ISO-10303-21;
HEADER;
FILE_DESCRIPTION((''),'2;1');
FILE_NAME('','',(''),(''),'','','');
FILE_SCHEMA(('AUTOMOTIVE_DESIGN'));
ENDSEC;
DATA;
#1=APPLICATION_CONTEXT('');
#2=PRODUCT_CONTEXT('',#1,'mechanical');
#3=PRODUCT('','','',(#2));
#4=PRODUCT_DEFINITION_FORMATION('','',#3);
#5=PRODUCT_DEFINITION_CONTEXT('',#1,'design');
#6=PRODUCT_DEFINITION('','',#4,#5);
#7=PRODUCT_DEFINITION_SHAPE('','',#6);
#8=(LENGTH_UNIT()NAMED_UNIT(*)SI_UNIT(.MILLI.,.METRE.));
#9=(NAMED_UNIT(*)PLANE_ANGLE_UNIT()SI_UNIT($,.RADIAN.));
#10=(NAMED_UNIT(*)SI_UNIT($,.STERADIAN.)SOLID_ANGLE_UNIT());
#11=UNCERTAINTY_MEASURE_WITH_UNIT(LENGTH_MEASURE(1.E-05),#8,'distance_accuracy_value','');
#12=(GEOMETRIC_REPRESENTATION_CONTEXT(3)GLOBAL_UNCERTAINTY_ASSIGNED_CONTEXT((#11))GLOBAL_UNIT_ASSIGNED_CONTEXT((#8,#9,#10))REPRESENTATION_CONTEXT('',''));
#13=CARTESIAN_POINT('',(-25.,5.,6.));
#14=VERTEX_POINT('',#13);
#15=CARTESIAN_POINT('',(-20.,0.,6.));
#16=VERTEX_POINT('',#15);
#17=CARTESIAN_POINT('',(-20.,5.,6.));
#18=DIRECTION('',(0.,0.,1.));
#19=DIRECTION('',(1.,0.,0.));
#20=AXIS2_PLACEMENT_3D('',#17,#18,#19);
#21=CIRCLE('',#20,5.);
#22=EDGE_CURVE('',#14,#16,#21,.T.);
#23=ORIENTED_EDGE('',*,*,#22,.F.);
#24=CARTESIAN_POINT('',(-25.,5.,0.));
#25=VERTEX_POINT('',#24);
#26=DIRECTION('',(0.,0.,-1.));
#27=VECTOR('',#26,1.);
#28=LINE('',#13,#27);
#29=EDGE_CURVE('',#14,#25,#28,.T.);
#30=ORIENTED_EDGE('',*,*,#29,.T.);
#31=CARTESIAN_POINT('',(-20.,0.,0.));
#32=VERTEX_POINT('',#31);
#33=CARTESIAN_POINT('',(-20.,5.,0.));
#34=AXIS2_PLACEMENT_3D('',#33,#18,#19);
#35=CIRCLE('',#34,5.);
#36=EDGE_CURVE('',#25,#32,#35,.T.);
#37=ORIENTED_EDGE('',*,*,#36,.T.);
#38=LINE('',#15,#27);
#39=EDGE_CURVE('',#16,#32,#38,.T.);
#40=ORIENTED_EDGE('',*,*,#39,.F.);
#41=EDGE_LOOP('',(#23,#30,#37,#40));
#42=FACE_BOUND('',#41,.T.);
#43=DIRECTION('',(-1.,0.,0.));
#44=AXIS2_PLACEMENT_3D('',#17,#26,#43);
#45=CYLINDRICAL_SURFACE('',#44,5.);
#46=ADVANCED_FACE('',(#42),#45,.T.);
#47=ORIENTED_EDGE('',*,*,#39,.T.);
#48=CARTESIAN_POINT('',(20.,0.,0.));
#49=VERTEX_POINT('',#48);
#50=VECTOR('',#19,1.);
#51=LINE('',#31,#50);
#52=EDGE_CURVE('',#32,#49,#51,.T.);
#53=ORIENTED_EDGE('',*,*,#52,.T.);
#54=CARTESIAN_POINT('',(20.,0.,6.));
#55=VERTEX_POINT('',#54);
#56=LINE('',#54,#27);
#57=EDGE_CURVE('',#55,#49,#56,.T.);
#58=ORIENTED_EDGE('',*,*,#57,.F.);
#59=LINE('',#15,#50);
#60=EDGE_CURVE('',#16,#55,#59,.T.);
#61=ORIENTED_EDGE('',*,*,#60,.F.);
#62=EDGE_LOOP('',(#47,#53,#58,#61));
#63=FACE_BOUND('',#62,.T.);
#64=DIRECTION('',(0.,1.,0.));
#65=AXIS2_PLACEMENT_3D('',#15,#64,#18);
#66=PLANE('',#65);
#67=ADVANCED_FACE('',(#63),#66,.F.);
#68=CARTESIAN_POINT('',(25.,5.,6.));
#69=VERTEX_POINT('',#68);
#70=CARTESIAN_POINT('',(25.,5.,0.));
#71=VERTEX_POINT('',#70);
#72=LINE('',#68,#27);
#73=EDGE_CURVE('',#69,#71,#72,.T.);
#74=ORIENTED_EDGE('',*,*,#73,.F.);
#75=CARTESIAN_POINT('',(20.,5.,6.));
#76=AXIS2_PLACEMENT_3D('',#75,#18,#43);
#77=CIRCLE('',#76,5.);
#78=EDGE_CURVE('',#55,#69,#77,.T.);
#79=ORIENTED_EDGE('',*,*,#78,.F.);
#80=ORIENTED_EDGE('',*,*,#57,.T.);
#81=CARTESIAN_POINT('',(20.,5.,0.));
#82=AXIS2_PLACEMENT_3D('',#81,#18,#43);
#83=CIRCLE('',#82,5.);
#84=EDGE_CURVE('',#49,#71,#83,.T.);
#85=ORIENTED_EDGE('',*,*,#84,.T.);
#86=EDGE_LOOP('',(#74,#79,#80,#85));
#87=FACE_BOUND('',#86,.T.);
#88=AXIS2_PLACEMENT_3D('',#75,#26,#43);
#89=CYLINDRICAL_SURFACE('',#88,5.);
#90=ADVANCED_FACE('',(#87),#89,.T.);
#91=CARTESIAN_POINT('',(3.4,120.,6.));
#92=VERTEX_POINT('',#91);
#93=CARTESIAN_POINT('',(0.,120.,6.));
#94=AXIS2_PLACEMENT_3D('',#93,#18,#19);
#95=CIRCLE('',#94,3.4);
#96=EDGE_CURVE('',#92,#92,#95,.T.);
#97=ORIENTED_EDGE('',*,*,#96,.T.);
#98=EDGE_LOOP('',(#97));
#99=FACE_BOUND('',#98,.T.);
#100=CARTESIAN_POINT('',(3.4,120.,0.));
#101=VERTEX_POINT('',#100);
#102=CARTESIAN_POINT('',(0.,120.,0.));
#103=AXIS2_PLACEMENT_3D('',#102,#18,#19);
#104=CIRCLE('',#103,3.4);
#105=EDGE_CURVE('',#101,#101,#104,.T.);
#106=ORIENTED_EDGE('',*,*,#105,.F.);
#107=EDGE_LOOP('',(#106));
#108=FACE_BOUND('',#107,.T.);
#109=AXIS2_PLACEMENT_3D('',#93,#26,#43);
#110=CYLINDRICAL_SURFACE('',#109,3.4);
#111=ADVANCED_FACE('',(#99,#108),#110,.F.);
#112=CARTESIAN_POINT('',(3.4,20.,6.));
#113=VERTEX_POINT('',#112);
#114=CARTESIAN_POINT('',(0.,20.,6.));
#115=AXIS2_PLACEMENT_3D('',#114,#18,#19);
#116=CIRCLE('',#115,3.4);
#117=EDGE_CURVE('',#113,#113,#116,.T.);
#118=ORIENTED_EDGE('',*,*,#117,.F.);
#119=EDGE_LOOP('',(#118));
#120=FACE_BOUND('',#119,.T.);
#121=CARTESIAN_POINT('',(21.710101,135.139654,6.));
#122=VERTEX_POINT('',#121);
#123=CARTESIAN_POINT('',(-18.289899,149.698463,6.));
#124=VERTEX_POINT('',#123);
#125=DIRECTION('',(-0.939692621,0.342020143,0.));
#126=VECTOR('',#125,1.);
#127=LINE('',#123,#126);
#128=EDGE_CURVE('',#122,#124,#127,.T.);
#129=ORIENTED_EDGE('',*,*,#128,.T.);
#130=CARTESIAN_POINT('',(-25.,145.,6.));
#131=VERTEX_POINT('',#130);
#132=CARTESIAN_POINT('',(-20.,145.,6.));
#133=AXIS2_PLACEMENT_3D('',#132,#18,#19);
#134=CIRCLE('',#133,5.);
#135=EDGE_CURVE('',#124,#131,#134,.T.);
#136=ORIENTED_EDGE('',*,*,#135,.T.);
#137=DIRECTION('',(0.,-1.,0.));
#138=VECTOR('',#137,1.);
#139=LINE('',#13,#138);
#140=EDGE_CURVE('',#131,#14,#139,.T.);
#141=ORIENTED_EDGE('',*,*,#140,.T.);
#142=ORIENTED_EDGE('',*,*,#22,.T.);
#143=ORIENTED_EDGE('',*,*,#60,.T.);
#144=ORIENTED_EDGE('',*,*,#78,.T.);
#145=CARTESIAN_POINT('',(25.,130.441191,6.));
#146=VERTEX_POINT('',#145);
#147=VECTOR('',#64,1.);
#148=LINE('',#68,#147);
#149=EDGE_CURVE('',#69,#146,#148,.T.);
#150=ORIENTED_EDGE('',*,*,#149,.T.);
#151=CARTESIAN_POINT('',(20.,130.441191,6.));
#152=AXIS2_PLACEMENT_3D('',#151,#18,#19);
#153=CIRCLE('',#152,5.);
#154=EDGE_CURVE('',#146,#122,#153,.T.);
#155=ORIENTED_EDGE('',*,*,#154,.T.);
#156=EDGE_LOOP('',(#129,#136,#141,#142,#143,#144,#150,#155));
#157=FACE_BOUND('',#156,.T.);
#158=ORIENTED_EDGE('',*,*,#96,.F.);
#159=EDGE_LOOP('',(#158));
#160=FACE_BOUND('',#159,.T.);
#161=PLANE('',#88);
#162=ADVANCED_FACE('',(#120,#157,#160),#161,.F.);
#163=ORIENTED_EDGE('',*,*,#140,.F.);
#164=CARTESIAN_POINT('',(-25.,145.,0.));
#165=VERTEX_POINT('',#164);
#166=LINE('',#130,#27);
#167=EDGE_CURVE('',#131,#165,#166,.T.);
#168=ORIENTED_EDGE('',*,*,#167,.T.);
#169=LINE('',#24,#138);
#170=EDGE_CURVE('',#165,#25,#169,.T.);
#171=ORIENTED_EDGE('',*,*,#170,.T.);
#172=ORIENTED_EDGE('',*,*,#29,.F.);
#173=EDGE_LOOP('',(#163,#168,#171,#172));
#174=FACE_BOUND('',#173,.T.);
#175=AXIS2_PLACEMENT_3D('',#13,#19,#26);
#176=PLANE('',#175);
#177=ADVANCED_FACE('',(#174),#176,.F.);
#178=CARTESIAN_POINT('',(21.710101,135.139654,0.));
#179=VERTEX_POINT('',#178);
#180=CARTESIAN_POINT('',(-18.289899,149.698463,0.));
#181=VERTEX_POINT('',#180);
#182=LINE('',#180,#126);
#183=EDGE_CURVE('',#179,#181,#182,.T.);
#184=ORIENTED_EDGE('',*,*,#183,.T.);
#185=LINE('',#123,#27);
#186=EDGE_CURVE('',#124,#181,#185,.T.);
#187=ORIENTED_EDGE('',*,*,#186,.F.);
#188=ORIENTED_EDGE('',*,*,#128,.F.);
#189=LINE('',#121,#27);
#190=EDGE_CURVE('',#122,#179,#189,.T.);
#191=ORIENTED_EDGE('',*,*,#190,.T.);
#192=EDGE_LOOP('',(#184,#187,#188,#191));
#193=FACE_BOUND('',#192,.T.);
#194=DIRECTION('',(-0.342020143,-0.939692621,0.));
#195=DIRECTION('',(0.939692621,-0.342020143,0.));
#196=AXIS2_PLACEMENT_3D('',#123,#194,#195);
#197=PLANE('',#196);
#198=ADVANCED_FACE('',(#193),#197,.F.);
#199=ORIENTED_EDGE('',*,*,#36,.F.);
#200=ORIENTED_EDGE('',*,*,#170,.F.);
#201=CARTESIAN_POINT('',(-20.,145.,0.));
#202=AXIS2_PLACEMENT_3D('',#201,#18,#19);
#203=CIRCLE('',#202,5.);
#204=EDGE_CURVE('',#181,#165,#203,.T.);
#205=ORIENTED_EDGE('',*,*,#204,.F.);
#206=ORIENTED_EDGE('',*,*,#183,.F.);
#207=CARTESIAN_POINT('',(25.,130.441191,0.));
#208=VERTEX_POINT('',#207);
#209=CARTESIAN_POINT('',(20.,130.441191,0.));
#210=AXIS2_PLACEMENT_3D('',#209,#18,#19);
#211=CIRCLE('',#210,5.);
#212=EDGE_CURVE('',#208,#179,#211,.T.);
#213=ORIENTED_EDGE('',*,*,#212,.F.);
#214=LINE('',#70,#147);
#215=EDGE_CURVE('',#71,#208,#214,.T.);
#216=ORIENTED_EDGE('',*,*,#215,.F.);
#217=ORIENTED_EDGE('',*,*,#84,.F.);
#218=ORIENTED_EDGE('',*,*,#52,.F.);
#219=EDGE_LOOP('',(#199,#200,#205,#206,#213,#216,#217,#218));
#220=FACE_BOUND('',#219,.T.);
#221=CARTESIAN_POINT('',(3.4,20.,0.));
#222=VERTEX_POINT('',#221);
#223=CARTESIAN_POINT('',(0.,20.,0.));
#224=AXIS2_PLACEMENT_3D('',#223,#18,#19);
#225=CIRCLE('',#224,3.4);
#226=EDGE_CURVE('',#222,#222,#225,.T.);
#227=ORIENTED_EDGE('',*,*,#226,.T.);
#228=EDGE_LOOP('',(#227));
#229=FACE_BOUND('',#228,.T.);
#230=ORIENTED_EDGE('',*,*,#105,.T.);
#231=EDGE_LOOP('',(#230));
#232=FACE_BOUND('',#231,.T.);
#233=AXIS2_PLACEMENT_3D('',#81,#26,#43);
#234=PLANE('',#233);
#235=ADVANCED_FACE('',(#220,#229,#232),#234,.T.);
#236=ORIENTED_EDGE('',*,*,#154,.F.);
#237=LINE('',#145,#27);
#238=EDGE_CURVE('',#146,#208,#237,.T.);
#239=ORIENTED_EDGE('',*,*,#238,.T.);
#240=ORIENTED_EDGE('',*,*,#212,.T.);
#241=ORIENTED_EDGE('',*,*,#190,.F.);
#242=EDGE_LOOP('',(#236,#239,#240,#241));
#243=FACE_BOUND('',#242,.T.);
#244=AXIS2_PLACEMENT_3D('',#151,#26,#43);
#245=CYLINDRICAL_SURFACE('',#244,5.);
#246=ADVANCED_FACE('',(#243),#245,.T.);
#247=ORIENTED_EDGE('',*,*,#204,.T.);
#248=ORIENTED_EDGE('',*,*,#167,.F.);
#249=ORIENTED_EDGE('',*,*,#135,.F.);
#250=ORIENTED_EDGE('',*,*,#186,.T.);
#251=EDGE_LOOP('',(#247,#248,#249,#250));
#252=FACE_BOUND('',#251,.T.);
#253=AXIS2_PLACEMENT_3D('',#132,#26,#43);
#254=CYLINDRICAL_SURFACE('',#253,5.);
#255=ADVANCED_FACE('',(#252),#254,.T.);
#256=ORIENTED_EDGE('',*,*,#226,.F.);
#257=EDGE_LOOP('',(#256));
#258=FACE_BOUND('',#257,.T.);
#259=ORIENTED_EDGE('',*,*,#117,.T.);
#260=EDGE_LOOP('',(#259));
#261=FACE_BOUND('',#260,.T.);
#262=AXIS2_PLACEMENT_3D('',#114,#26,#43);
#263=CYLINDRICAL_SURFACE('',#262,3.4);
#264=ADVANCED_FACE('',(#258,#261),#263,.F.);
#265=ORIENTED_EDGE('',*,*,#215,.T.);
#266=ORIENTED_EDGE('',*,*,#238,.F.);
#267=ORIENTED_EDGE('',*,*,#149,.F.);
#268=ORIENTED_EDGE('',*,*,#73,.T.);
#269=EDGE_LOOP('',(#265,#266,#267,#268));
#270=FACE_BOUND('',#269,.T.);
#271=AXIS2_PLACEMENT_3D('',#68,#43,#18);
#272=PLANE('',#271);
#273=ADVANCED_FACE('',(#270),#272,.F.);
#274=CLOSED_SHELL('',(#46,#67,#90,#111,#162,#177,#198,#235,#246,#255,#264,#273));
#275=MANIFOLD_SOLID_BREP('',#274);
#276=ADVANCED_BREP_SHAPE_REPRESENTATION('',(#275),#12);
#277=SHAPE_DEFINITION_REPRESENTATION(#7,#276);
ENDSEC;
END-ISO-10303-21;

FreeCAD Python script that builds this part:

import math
import FreeCAD as App
import Part
import Sketcher

V = App.Vector
Q = App.Units.Quantity

doc = App.newDocument("Part")
body = doc.addObject("PartDesign::Body", "Body")

sketch1 = doc.addObject("Sketcher::SketchObject", "Sketch")
body.addObject(sketch1)
sketch1.AttachmentSupport = (doc.XY_Plane, [""])
sketch1.MapMode = "FlatFace"
sketch1.addGeometry([
    Part.LineSegment(V(-20, 0, 0), V(20, 0, 0)),
    Part.ArcOfCircle(Part.Circle(V(20, 5, 0), V(0, 0, 1), 5), math.radians(-90), math.radians(0)),
    Part.LineSegment(V(25, 5, 0), V(25, 130.4, 0)),
    Part.ArcOfCircle(Part.Circle(V(20, 130.4, 0), V(0, 0, 1), 5), math.radians(0), math.radians(70)),
    Part.LineSegment(V(21.7, 135.1, 0), V(-18.3, 149.7, 0)),
    Part.ArcOfCircle(Part.Circle(V(-20, 145, 0), V(0, 0, 1), 5), math.radians(70), math.radians(180)),
    Part.LineSegment(V(-25, 145, 0), V(-25, 5, 0)),
    Part.ArcOfCircle(Part.Circle(V(-20, 5, 0), V(0, 0, 1), 5), math.radians(180), math.radians(270)),
    Part.Circle(V(0, 20, 0), V(0, 0, 1), 3.4),
    Part.Circle(V(0, 120, 0), V(0, 0, 1), 3.4),
], False)
sketch1.addConstraint([
    Sketcher.Constraint("Tangent", 0, 2, 1, 1),
    Sketcher.Constraint("Tangent", 1, 2, 2, 1),
    Sketcher.Constraint("Tangent", 2, 2, 3, 1),
    Sketcher.Constraint("Tangent", 3, 2, 4, 1),
    Sketcher.Constraint("Tangent", 4, 2, 5, 1),
    Sketcher.Constraint("Tangent", 5, 2, 6, 1),
    Sketcher.Constraint("Tangent", 6, 2, 7, 1),
    Sketcher.Constraint("Tangent", 7, 2, 0, 1),
    Sketcher.Constraint("Horizontal", 0),
    Sketcher.Constraint("Vertical", 2),
    Sketcher.Constraint("Vertical", 6),
    Sketcher.Constraint("Equal", 1, 3),
    Sketcher.Constraint("Equal", 3, 5),
    Sketcher.Constraint("Equal", 5, 7),
    Sketcher.Constraint("Equal", 8, 9),
    Sketcher.Constraint("Symmetric", 0, 2, 7, 2, -1, 1),
    Sketcher.Constraint("PointOnObject", 8, 3, -2),
    Sketcher.Constraint("PointOnObject", 9, 3, -2),
    Sketcher.Constraint("Radius", 1, 5.0),
    Sketcher.Constraint("Diameter", 8, 6.8),
    Sketcher.Constraint("DistanceX", 0, 1, 0, 2, 40.0),
    Sketcher.Constraint("DistanceY", 6, 2, 6, 1, 140.0),
    Sketcher.Constraint("Angle", 4, Q("160 deg")),
    Sketcher.Constraint("DistanceY", -1, 1, 8, 3, 20.0),
    Sketcher.Constraint("DistanceY", -1, 1, 9, 3, 120.0),
])
pad1 = doc.addObject("PartDesign::Pad", "Pad")
body.addObject(pad1)
pad1.Profile = sketch1
pad1.Length = 6

doc.recompute()
